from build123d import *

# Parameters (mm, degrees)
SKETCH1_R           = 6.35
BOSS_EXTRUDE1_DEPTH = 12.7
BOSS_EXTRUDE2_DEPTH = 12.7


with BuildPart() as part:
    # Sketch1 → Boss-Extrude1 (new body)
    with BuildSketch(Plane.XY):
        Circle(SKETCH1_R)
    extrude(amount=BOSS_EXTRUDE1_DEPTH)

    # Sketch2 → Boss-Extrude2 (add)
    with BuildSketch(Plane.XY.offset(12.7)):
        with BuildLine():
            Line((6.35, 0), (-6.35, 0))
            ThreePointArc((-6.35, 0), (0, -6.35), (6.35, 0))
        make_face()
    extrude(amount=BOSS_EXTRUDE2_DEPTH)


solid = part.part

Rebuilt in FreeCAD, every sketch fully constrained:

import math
import FreeCAD as App
import Part
import Sketcher
Q = App.Units.Quantity

doc = App.newDocument("Part")
body = doc.addObject("PartDesign::Body", "Body")

# Sketch on XY plane
sketch1 = body.newObject("Sketcher::SketchObject", "Sketch")
sketch1.AttachmentSupport = (doc.getObject("XY_Plane"), [""])
sketch1.MapMode = "FlatFace"
sketch1.addGeometry(Part.Circle(App.Vector(0, 0, 0), App.Vector(0, 0, 1), 6.35), False)
sketch1.addConstraint(Sketcher.Constraint("Coincident", 0, 3, -1, 1))
sketch1.addConstraint(Sketcher.Constraint("Diameter", 0, Q("0.5 in")))
pad1 = body.newObject("PartDesign::Pad", "Pad")
pad1.Profile = sketch1
pad1.Length = Q("0.5 in")

# Sketch on XY plane
sketch2 = body.newObject("Sketcher::SketchObject", "Sketch001")
sketch2.AttachmentSupport = (doc.getObject("XY_Plane"), [""])
sketch2.MapMode = "FlatFace"
sketch2.AttachmentOffset = App.Placement(App.Vector(0, 0, 0.5 * 25.4), App.Rotation())
sketch2.addGeometry(Part.LineSegment(App.Vector(6.35, 0, 0), App.Vector(-6.35, 0, 0)), False)
sketch2.addGeometry(Part.ArcOfCircle(Part.Circle(App.Vector(0, 0, 0), App.Vector(0, 0, 1), 6.35), math.radians(180), math.radians(360)), False)
sketch2.addConstraint(Sketcher.Constraint("Coincident", 0, 1, 1, 2))
sketch2.addConstraint(Sketcher.Constraint("Coincident", 1, 1, 0, 2))
sketch2.addConstraint(Sketcher.Constraint("Horizontal", 0))
sketch2.addConstraint(Sketcher.Constraint("Coincident", 1, 3, -1, 1))
sketch2.addConstraint(Sketcher.Constraint("PointOnObject", 0, 1, -1))
sketch2.addConstraint(Sketcher.Constraint("Radius", 1, Q("0.25 in")))
pad2 = body.newObject("PartDesign::Pad", "Pad001")
pad2.Profile = sketch2
pad2.Length = Q("0.5 in")

doc.recompute()
